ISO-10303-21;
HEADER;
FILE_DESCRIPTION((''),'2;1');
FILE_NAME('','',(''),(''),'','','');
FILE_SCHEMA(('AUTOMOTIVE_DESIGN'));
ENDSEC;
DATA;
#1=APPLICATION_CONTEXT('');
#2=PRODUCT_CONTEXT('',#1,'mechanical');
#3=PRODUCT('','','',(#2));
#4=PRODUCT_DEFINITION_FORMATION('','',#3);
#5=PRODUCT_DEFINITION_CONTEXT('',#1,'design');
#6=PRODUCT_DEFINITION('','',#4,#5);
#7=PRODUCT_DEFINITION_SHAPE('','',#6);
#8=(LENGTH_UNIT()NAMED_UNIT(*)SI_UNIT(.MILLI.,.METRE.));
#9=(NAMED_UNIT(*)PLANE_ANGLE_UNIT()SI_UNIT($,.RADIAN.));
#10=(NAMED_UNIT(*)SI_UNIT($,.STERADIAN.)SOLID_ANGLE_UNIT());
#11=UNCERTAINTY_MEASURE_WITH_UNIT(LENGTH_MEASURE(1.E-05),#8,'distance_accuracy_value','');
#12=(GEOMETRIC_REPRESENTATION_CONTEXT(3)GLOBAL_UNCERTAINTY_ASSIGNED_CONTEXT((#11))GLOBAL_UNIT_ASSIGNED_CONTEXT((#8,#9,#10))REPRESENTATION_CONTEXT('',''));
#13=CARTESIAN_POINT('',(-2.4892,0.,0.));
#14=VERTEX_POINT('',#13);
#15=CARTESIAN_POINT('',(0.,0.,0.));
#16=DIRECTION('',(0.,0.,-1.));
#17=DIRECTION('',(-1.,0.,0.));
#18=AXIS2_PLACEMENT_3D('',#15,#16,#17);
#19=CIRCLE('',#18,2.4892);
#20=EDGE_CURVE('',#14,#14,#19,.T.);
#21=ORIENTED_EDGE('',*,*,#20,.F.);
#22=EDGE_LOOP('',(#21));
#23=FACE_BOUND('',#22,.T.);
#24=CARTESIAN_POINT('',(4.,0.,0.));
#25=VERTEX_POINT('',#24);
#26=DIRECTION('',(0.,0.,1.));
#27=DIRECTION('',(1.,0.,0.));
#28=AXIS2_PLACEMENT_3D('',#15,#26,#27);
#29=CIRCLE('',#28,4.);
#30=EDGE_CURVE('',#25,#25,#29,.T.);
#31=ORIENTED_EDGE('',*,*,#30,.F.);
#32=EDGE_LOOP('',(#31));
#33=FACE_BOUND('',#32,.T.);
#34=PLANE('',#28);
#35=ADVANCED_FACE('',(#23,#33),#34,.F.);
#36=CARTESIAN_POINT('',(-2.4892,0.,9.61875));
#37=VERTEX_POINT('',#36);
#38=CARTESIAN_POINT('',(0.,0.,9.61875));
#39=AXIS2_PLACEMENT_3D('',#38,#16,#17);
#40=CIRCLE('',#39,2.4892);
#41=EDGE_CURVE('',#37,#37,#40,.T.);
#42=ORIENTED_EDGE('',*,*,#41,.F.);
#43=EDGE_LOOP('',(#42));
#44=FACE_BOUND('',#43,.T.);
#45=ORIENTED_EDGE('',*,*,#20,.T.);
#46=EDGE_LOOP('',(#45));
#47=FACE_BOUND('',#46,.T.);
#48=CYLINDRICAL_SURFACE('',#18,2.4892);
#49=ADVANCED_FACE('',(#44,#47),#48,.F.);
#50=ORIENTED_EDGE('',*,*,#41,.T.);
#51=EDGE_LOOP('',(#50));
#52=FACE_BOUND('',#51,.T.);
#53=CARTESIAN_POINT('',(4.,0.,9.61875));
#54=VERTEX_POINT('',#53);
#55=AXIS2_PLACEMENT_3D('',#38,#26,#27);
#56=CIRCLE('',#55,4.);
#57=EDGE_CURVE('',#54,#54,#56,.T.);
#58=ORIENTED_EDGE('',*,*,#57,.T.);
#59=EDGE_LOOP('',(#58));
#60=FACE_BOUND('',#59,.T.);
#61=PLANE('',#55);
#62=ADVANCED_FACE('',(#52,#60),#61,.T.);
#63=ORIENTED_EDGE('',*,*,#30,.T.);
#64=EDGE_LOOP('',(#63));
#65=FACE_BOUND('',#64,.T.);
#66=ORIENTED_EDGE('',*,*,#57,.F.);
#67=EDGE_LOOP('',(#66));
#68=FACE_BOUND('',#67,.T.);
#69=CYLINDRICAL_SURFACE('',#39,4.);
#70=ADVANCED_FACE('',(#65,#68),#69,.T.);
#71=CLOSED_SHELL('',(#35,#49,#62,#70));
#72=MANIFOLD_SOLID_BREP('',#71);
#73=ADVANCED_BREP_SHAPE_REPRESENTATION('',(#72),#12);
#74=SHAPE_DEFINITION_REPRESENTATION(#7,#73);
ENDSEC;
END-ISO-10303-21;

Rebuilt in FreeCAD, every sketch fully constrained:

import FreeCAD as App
import Part
import Sketcher
from FreeCAD import Vector
Q = App.Units.Quantity

doc = App.newDocument("Part")
params = doc.addObject("Spreadsheet::Sheet", "Params")
for row, (alias, value) in enumerate([
    ("sketch1_diameter", "8 mm"),
    ("pad1_length", "9.61875 mm"),
    ("hole_diameter", "4.9784 mm"),
], start=1):
    params.set(f"A{row}", alias)
    params.set(f"B{row}", "=" + value)
    params.setAlias(f"B{row}", alias)

body = doc.addObject("PartDesign::Body", "Body")

# Sketch on XY plane
sketch1 = body.newObject("Sketcher::SketchObject", "Sketch")
sketch1.AttachmentSupport = (doc.getObject("XY_Plane"), [""])
sketch1.MapMode = "FlatFace"
sketch1.addGeometry(Part.Circle(Vector(0, 0, 0), Vector(0, 0, 1), 4), False)
sketch1.addConstraint(Sketcher.Constraint("Coincident", 0, 3, -1, 1))
sketch1.addConstraint(Sketcher.Constraint("Diameter", 0, Q("8 mm")))
sketch1.setExpression("Constraints[1]", "Params.sketch1_diameter")
pad1 = body.newObject("PartDesign::Pad", "Pad")
pad1.Profile = sketch1
pad1.setExpression("Length", "Params.pad1_length")

# Sketch on XY plane
sketch2 = body.newObject("Sketcher::SketchObject", "Sketch001")
sketch2.AttachmentSupport = (doc.getObject("XY_Plane"), [""])
sketch2.MapMode = "FlatFace"
sketch2.addGeometry(Part.Circle(Vector(0, 0, 0), Vector(0, 0, 1), 2.4892), False)
sketch2.addConstraint(Sketcher.Constraint("Coincident", 0, 3, -1, 1))
sketch2.addConstraint(Sketcher.Constraint("Diameter", 0, Q("4.9784 mm")))
doc.recompute()
hole = body.newObject("PartDesign::Hole", "Hole")
hole.Profile = sketch2
hole.ThreadType = "None"
hole.setExpression("Diameter", "Params.hole_diameter")
hole.DepthType = "ThroughAll"
hole.Reversed = True

doc.recompute()
